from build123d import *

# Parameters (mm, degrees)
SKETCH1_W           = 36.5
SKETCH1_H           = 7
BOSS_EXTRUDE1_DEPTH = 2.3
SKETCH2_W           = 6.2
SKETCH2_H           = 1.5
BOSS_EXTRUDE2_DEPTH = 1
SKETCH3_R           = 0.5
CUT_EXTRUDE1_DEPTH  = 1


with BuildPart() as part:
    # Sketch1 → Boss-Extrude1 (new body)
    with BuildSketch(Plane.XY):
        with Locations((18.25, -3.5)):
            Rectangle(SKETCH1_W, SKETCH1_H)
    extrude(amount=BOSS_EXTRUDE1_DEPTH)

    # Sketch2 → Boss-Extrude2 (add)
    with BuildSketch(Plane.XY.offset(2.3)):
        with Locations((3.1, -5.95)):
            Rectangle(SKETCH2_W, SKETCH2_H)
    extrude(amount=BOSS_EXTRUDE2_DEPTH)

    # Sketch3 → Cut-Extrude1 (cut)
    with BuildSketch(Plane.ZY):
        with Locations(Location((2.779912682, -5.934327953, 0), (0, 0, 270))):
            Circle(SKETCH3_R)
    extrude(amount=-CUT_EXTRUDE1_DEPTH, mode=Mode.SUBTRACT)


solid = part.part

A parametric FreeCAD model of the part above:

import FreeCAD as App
import Part
import Sketcher
from FreeCAD import Vector
Q = App.Units.Quantity


def add_polygon(sketch, points):
    """Adds a closed chain of lines whose ends are joined by coincident constraints."""
    first, n = sketch.GeometryCount, len(points)
    for a, b in zip(points, points[1:] + points[:1]):
        sketch.addGeometry(Part.LineSegment(App.Vector(*a, 0), App.Vector(*b, 0)), False)
    for i in range(n):
        sketch.addConstraint(Sketcher.Constraint("Coincident", first + i, 2, first + (i + 1) % n, 1))

doc = App.newDocument("Part")
body = doc.addObject("PartDesign::Body", "Body")

# Sketch on XY plane
sketch1 = body.newObject("Sketcher::SketchObject", "Sketch")
sketch1.AttachmentSupport = (doc.getObject("XY_Plane"), [""])
sketch1.MapMode = "FlatFace"
add_polygon(sketch1, [(0, 0), (0, -7), (36.5, -7), (36.5, 0)])  # lines 0-3
sketch1.addConstraint([
    Sketcher.Constraint("Vertical", 0),
    Sketcher.Constraint("Horizontal", 1),
    Sketcher.Constraint("Vertical", 2),
    Sketcher.Constraint("Horizontal", 3),
    Sketcher.Constraint("Coincident", 3, 2, -1, 1),
    Sketcher.Constraint("DistanceY", 0, 2, 0, 1, Q("7 mm")),
    Sketcher.Constraint("DistanceX", 1, 1, 1, 2, Q("36.5 mm")),
])
pad1 = body.newObject("PartDesign::Pad", "Pad")
pad1.Profile = sketch1
pad1.Length = 2.3

# Sketch on XY plane
sketch2 = body.newObject("Sketcher::SketchObject", "Sketch001")
sketch2.AttachmentSupport = (doc.getObject("XY_Plane"), [""])
sketch2.MapMode = "FlatFace"
sketch2.AttachmentOffset = App.Placement(Vector(0, 0, 2.3), App.Rotation())
add_polygon(sketch2, [(0, -5.2), (0, -6.7), (6.2, -6.7), (6.2, -5.2)])  # lines 0-3
sketch2.addConstraint([
    Sketcher.Constraint("Vertical", 0),
    Sketcher.Constraint("Horizontal", 1),
    Sketcher.Constraint("Vertical", 2),
    Sketcher.Constraint("Horizontal", 3),
    Sketcher.Constraint("PointOnObject", 0, 2, -2),
    Sketcher.Constraint("DistanceX", 1, 1, 1, 2, Q("6.2 mm")),
    Sketcher.Constraint("DistanceY", 0, 2, 0, 1, Q("1.5 mm")),
    Sketcher.Constraint("DistanceY", 0, 2, -1, 1, Q("6.7 mm")),
])
pad2 = body.newObject("PartDesign::Pad", "Pad001")
pad2.Profile = sketch2
pad2.Length = 1

# Sketch on YZ plane
sketch3 = body.newObject("Sketcher::SketchObject", "Sketch002")
sketch3.AttachmentSupport = (doc.getObject("YZ_Plane"), [""])
sketch3.MapMode = "FlatFace"
sketch3.addGeometry(Part.Circle(Vector(-5.934328, 2.779913, 0), Vector(0, 0, 1), 0.5), False)
sketch3.addConstraint([
    Sketcher.Constraint("Diameter", 0, Q("1 mm")),
    Sketcher.Constraint("DistanceX", 0, 3, -1, 1, Q("5.934328 mm")),
    Sketcher.Constraint("DistanceY", -1, 1, 0, 3, Q("2.779913 mm")),
])
pocket1 = body.newObject("PartDesign::Pocket", "Pocket")
pocket1.Profile = sketch3
pocket1.Length = 1
pocket1.Reversed = True

doc.recompute()
